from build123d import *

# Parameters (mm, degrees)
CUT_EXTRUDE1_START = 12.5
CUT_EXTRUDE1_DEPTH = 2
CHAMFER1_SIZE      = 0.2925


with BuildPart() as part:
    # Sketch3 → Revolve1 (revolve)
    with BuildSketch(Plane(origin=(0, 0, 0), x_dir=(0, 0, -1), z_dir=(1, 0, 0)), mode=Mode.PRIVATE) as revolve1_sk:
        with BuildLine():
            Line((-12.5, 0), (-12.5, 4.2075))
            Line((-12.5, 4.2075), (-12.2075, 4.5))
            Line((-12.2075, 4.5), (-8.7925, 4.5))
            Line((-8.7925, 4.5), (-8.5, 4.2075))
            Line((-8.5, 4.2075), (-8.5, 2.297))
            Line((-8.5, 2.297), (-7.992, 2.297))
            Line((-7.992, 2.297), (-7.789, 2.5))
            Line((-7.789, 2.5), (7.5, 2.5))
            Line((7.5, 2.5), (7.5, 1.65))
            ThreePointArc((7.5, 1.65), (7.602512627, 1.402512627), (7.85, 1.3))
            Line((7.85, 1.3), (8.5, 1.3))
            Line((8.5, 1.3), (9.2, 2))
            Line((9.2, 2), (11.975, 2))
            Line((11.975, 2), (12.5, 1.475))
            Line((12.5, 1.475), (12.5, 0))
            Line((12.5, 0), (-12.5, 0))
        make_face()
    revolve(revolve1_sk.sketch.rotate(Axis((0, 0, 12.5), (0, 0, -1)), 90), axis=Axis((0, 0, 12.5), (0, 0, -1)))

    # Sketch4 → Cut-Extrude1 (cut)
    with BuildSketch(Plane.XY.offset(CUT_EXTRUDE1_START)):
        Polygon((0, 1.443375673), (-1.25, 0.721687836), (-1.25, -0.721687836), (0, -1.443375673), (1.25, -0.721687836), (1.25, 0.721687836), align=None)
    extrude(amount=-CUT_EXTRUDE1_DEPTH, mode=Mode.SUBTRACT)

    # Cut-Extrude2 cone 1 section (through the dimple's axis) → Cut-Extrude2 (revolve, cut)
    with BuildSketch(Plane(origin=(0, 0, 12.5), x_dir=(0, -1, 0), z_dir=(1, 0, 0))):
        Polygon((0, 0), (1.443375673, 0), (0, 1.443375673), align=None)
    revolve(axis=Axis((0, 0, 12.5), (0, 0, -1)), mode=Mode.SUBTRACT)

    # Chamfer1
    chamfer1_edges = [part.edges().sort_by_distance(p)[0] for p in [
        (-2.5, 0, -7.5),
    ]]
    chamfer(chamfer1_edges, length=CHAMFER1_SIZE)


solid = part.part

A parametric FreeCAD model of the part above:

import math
import FreeCAD as App
import Part
import Sketcher
Q = App.Units.Quantity


def edges_at(feature, points):
    """Names of the edges that pass closest to the given points."""
    edges = feature.Shape.Edges
    near = lambda p: min(range(len(edges)), key=lambda i: edges[i].distToShape(Part.Vertex(*p))[0])
    return sorted({f"Edge{near(p) + 1}" for p in points})

doc = App.newDocument("Part")
params = doc.addObject("Spreadsheet::Sheet", "Params")
for row, (alias, value) in enumerate([
    ("sketch1_height", "25 mm"),
    ("sketch1_radius", "0.35 mm"),
    ("sketch1_width", "0.85 mm"),
    ("revolution_angle", "360 deg"),
    ("pocket1_length", "2 mm"),
    ("groove_angle", "360 deg"),
    ("chamfer_size", "0.2925 mm"),
], start=1):
    params.set(f"A{row}", alias)
    params.set(f"B{row}", "=" + value)
    params.setAlias(f"B{row}", alias)

body = doc.addObject("PartDesign::Body", "Body")

sketch1 = body.newObject("Sketcher::SketchObject", "Sketch")
sketch1.AttachmentSupport = (doc.getObject("YZ_Plane"), [""])
sketch1.MapMode = "FlatFace"
sketch1.addGeometry(Part.LineSegment(App.Vector(4.2075, 12.5, 0), App.Vector(0, 12.5, 0)), False)
sketch1.addGeometry(Part.LineSegment(App.Vector(0, 12.5, 0), App.Vector(0, -12.5, 0)), False)
sketch1.addGeometry(Part.LineSegment(App.Vector(0, -12.5, 0), App.Vector(1.475, -12.5, 0)), False)
sketch1.addGeometry(Part.LineSegment(App.Vector(1.475, -12.5, 0), App.Vector(2, -11.975, 0)), False)
sketch1.addGeometry(Part.LineSegment(App.Vector(2, -11.975, 0), App.Vector(2, -9.2, 0)), False)
sketch1.addGeometry(Part.LineSegment(App.Vector(2, -9.2, 0), App.Vector(1.3, -8.5, 0)), False)
sketch1.addGeometry(Part.LineSegment(App.Vector(1.3, -8.5, 0), App.Vector(1.3, -7.85, 0)), False)
sketch1.addGeometry(Part.ArcOfCircle(Part.Circle(App.Vector(1.65, -7.85, 0), App.Vector(0, 0, 1), 0.35), math.radians(90), math.radians(180)), False)
sketch1.addGeometry(Part.LineSegment(App.Vector(1.65, -7.5, 0), App.Vector(2.5, -7.5, 0)), False)
sketch1.addGeometry(Part.LineSegment(App.Vector(2.5, -7.5, 0), App.Vector(2.5, 7.789, 0)), False)
sketch1.addGeometry(Part.LineSegment(App.Vector(2.5, 7.789, 0), App.Vector(2.297, 7.992, 0)), False)
sketch1.addGeometry(Part.LineSegment(App.Vector(2.297, 7.992, 0), App.Vector(2.297, 8.5, 0)), False)
sketch1.addGeometry(Part.LineSegment(App.Vector(2.297, 8.5, 0), App.Vector(4.2075, 8.5, 0)), False)
sketch1.addGeometry(Part.LineSegment(App.Vector(4.2075, 8.5, 0), App.Vector(4.5, 8.7925, 0)), False)
sketch1.addGeometry(Part.LineSegment(App.Vector(4.5, 8.7925, 0), App.Vector(4.5, 12.2075, 0)), False)
sketch1.addGeometry(Part.LineSegment(App.Vector(4.5, 12.2075, 0), App.Vector(4.2075, 12.5, 0)), False)
sketch1.addConstraint(Sketcher.Constraint("Coincident", 0, 2, 1, 1))
sketch1.addConstraint(Sketcher.Constraint("Coincident", 1, 2, 2, 1))
sketch1.addConstraint(Sketcher.Constraint("Coincident", 2, 2, 3, 1))
sketch1.addConstraint(Sketcher.Constraint("Coincident", 3, 2, 4, 1))
sketch1.addConstraint(Sketcher.Constraint("Coincident", 4, 2, 5, 1))
sketch1.addConstraint(Sketcher.Constraint("Coincident", 5, 2, 6, 1))
sketch1.addConstraint(Sketcher.Constraint("Tangent", 6, 2, 7, 2))
sketch1.addConstraint(Sketcher.Constraint("Tangent", 7, 1, 8, 1))
sketch1.addConstraint(Sketcher.Constraint("Coincident", 8, 2, 9, 1))
sketch1.addConstraint(Sketcher.Constraint("Coincident", 9, 2, 10, 1))
sketch1.addConstraint(Sketcher.Constraint("Coincident", 10, 2, 11, 1))
sketch1.addConstraint(Sketcher.Constraint("Coincident", 11, 2, 12, 1))
sketch1.addConstraint(Sketcher.Constraint("Coincident", 12, 2, 13, 1))
sketch1.addConstraint(Sketcher.Constraint("Coincident", 13, 2, 14, 1))
sketch1.addConstraint(Sketcher.Constraint("Coincident", 14, 2, 15, 1))
sketch1.addConstraint(Sketcher.Constraint("Coincident", 15, 2, 0, 1))
sketch1.addConstraint(Sketcher.Constraint("Horizontal", 0))
sketch1.addConstraint(Sketcher.Constraint("Vertical", 1))
sketch1.addConstraint(Sketcher.Constraint("Horizontal", 2))
sketch1.addConstraint(Sketcher.Constraint("Vertical", 4))
sketch1.addConstraint(Sketcher.Constraint("Vertical", 6))
sketch1.addConstraint(Sketcher.Constraint("Horizontal", 8))
sketch1.addConstraint(Sketcher.Constraint("Vertical", 9))
sketch1.addConstraint(Sketcher.Constraint("Vertical", 11))
sketch1.addConstraint(Sketcher.Constraint("Horizontal", 12))
sketch1.addConstraint(Sketcher.Constraint("Vertical", 14))
sketch1.addConstraint(Sketcher.Constraint("Symmetric", 0, 2, 1, 2, -1, 1))
sketch1.addConstraint(Sketcher.Constraint("Perpendicular", 3, 5))
sketch1.addConstraint(Sketcher.Constraint("Parallel", 5, 10))
sketch1.addConstraint(Sketcher.Constraint("Perpendicular", 10, 13))
sketch1.addConstraint(Sketcher.Constraint("Perpendicular", 13, 15))
sketch1.addConstraint(Sketcher.Constraint("Vertical", 12, 2, 15, 2))
sketch1.addConstraint(Sketcher.Constraint("Equal", 13, 15))
sketch1.addConstraint(Sketcher.Constraint("DistanceY", 1, 2, 1, 1, Q("25 mm")))
sketch1.addConstraint(Sketcher.Constraint("Radius", 7, Q("0.35 mm")))
sketch1.addConstraint(Sketcher.Constraint("DistanceX", -1, 1, 3, 2, Q("2 mm")))
sketch1.addConstraint(Sketcher.Constraint("DistanceY", 2, 2, 5, 2, Q("4 mm")))
sketch1.addConstraint(Sketcher.Constraint("DistanceY", 5, 2, 7, 1, Q("1 mm")))
sketch1.addConstraint(Sketcher.Constraint("DistanceY", 11, 2, 0, 2, Q("4 mm")))
sketch1.addConstraint(Sketcher.Constraint("DistanceX", 9, 2, 13, 2, Q("2 mm")))
sketch1.addConstraint(Sketcher.Constraint("DistanceX", 8, 1, 8, 2, Q("0.85 mm")))
sketch1.addConstraint(Sketcher.Constraint("DistanceY", 4, 2, -1, 1, Q("9.2 mm")))
sketch1.addConstraint(Sketcher.Constraint("DistanceX", 2, 1, 2, 2, Q("1.475 mm")))
sketch1.addConstraint(Sketcher.Constraint("DistanceY", 9, 1, 9, 2, Q("15.289 mm")))
sketch1.addConstraint(Sketcher.Constraint("DistanceY", 11, 1, 11, 2, Q("0.508 mm")))
sketch1.addConstraint(Sketcher.Constraint("DistanceY", 14, 1, 14, 2, Q("3.415 mm")))
sketch1.setExpression("Constraints[33]", "Params.sketch1_height")
sketch1.setExpression("Constraints[34]", "Params.sketch1_radius")
sketch1.setExpression("Constraints[40]", "Params.sketch1_width")
revolution = body.newObject("PartDesign::Revolution", "Revolution")
revolution.Profile = sketch1
revolution.ReferenceAxis = (sketch1, ["V_Axis"])
revolution.setExpression("Angle", "Params.revolution_angle")

sketch2 = body.newObject("Sketcher::SketchObject", "Sketch001")
sketch2.AttachmentSupport = (doc.getObject("XY_Plane"), [""])
sketch2.MapMode = "FlatFace"
sketch2.AttachmentOffset = App.Placement(App.Vector(0, 0, 12.5), App.Rotation())
sketch2.addGeometry(Part.LineSegment(App.Vector(0, 1.443376, 0), App.Vector(-1.25, 0.721688, 0)), False)
sketch2.addGeometry(Part.LineSegment(App.Vector(-1.25, 0.721688, 0), App.Vector(-1.25, -0.721688, 0)), False)
sketch2.addGeometry(Part.LineSegment(App.Vector(-1.25, -0.721688, 0), App.Vector(0, -1.443376, 0)), False)
sketch2.addGeometry(Part.LineSegment(App.Vector(0, -1.443376, 0), App.Vector(1.25, -0.721688, 0)), False)
sketch2.addGeometry(Part.LineSegment(App.Vector(1.25, -0.721688, 0), App.Vector(1.25, 0.721688, 0)), False)
sketch2.addGeometry(Part.LineSegment(App.Vector(1.25, 0.721688, 0), App.Vector(0, 1.443376, 0)), False)
sketch2.addConstraint(Sketcher.Constraint("Coincident", 0, 2, 1, 1))
sketch2.addConstraint(Sketcher.Constraint("Coincident", 1, 2, 2, 1))
sketch2.addConstraint(Sketcher.Constraint("Coincident", 2, 2, 3, 1))
sketch2.addConstraint(Sketcher.Constraint("Coincident", 3, 2, 4, 1))
sketch2.addConstraint(Sketcher.Constraint("Coincident", 4, 2, 5, 1))
sketch2.addConstraint(Sketcher.Constraint("Coincident", 5, 2, 0, 1))
sketch2.addConstraint(Sketcher.Constraint("Vertical", 1))
sketch2.addConstraint(Sketcher.Constraint("Vertical", 4))
sketch2.addConstraint(Sketcher.Constraint("Symmetric", 0, 2, 3, 2, -1, 1))
sketch2.addConstraint(Sketcher.Constraint("Symmetric", 2, 2, 5, 2, -1, 1))
sketch2.addConstraint(Sketcher.Constraint("PointOnObject", 2, 2, -2))
sketch2.addConstraint(Sketcher.Constraint("Parallel", 2, 5))
sketch2.addConstraint(Sketcher.Constraint("Horizontal", 1, 2, 3, 2))
sketch2.addConstraint(Sketcher.Constraint("Angle", 0, Q("-150 deg")))
sketch2.addConstraint(Sketcher.Constraint("DistanceX", 1, 2, 3, 2, Q("2.5 mm")))
sketch2.addConstraint(Sketcher.Constraint("DistanceY", 1, 2, 1, 1, Q("1.443376 mm")))
pocket1 = body.newObject("PartDesign::Pocket", "Pocket")
pocket1.Profile = sketch2
pocket1.setExpression("Length", "Params.pocket1_length")

sketch3 = body.newObject("Sketcher::SketchObject", "Sketch002")
sketch3.AttachmentSupport = (doc.getObject("YZ_Plane"), [""])
sketch3.MapMode = "FlatFace"
sketch3.addGeometry(Part.LineSegment(App.Vector(0, 12.5, 0), App.Vector(-1.443376, 12.5, 0)), False)
sketch3.addGeometry(Part.LineSegment(App.Vector(-1.443376, 12.5, 0), App.Vector(0, 11.056624, 0)), False)
sketch3.addGeometry(Part.LineSegment(App.Vector(0, 11.056624, 0), App.Vector(0, 12.5, 0)), False)
sketch3.addConstraint(Sketcher.Constraint("Coincident", 0, 2, 1, 1))
sketch3.addConstraint(Sketcher.Constraint("Coincident", 1, 2, 2, 1))
sketch3.addConstraint(Sketcher.Constraint("Coincident", 2, 2, 0, 1))
sketch3.addConstraint(Sketcher.Constraint("Horizontal", 0))
sketch3.addConstraint(Sketcher.Constraint("Vertical", 2))
sketch3.addConstraint(Sketcher.Constraint("PointOnObject", 1, 2, -2))
sketch3.addConstraint(Sketcher.Constraint("Equal", 0, 2))
sketch3.addConstraint(Sketcher.Constraint("DistanceY", -1, 1, 0, 2, Q("12.5 mm")))
sketch3.addConstraint(Sketcher.Constraint("Distance", 1, Q("2.041241 mm")))
groove = body.newObject("PartDesign::Groove", "Groove")
groove.Profile = sketch3
groove.ReferenceAxis = (sketch3, ["V_Axis"])
groove.setExpression("Angle", "Params.groove_angle")
doc.recompute()

chamfer = body.newObject("PartDesign::Chamfer", "Chamfer")
chamfer.Base = (groove, edges_at(groove, [(-2.5, 0, -7.5)]))
chamfer.setExpression("Size", "Params.chamfer_size")

doc.recompute()
